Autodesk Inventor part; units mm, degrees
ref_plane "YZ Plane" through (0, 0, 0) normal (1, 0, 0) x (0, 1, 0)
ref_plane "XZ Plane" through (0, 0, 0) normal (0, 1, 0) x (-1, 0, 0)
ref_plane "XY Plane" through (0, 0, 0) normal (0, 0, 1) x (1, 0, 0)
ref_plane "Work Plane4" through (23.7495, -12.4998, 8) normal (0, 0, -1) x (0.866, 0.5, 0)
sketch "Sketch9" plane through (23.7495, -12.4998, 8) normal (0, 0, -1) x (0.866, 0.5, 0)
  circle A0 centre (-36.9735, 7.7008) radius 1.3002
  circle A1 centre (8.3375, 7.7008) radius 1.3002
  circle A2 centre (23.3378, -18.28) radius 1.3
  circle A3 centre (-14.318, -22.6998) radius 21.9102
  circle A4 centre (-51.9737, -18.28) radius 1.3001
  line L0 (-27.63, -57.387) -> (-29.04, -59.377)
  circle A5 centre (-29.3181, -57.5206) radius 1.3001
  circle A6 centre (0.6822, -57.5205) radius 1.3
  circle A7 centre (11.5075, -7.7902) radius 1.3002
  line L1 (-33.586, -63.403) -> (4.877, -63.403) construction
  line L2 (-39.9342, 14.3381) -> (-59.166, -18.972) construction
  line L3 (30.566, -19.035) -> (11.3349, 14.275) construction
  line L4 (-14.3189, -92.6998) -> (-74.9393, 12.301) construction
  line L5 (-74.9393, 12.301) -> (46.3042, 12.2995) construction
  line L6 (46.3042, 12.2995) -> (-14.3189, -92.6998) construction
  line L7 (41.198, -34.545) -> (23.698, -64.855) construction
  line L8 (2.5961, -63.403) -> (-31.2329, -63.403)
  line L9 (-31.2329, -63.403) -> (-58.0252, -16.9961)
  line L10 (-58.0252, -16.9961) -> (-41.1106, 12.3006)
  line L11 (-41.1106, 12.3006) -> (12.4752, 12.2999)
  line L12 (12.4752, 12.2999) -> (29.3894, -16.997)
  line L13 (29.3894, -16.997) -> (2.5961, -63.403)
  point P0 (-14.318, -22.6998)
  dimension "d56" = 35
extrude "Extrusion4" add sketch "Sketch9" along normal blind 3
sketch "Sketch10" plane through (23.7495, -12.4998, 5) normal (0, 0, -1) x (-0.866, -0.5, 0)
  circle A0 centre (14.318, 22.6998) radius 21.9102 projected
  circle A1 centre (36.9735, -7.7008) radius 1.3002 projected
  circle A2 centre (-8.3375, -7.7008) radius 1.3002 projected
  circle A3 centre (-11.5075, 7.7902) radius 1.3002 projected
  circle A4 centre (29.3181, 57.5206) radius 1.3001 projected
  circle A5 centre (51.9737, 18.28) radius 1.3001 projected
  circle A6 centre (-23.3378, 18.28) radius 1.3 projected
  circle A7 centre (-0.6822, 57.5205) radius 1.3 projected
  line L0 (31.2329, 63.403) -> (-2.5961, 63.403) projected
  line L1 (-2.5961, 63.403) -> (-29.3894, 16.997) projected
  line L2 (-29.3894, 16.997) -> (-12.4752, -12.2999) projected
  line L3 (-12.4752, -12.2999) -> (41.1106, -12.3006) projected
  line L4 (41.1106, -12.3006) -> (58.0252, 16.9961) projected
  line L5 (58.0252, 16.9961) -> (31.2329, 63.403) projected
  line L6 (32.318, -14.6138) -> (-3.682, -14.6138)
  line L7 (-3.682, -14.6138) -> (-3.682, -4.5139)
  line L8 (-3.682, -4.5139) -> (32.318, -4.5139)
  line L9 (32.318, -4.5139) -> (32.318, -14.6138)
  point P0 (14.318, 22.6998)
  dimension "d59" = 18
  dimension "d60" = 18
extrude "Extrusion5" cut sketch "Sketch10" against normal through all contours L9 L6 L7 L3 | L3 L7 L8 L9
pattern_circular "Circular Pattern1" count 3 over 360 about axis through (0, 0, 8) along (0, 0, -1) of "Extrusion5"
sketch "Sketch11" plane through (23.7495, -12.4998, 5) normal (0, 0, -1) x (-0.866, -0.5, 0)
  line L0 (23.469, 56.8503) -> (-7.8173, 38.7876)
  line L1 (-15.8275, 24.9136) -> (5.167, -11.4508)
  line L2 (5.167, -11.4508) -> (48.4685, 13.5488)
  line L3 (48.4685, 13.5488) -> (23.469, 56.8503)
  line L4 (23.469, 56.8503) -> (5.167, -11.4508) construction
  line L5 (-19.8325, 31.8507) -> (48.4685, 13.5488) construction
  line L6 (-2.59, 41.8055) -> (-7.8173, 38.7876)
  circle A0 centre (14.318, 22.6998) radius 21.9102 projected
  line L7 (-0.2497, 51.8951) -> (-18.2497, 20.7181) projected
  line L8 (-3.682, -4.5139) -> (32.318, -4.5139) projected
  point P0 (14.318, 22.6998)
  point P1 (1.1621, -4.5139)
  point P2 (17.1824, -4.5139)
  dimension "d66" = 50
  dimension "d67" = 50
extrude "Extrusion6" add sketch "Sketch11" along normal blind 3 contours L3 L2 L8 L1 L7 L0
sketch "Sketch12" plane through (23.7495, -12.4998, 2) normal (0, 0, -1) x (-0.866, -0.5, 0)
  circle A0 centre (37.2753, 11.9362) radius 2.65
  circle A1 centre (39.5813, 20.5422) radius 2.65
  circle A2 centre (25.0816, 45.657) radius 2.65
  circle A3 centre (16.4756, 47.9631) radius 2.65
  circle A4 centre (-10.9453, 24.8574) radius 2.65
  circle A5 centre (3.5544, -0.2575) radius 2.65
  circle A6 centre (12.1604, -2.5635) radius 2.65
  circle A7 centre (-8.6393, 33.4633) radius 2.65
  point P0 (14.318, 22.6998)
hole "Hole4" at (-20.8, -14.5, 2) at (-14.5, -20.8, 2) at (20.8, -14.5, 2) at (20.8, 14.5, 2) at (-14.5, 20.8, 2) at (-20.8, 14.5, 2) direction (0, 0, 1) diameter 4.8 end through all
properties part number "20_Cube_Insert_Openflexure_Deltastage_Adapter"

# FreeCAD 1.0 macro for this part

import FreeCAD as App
import Part
import Sketcher

V = App.Vector
Q = App.Units.Quantity

doc = App.newDocument("Part")
body = doc.addObject("PartDesign::Body", "Body")

# Sketch on XY plane
sketch1 = doc.addObject("Sketcher::SketchObject", "Sketch")
body.addObject(sketch1)
sketch1.AttachmentSupport = (doc.XY_Plane, [""])
sketch1.MapMode = "FlatFace"
sketch1.AttachmentOffset = App.Placement(V(0, 0, 8), App.Rotation())
sketch1.addGeometry([
    Part.LineSegment(V(-35, 26.8, 0), V(-5.7, 43.7, 0)),  # 0
    Part.LineSegment(V(-5.7, 43.7, 0), V(40.7, 16.9, 0)),  # 1
    Part.LineSegment(V(40.7, 16.9, 0), V(40.7, -16.9, 0)),  # 2
    Part.LineSegment(V(40.7, -16.9, 0), V(-5.7, -43.7, 0)),  # 3
    Part.LineSegment(V(-5.7, -43.7, 0), V(-35, -26.8, 0)),  # 4
    Part.LineSegment(V(-35, -26.8, 0), V(-35, 26.8, 0)),  # 5
    Part.Circle(V(-30.4, 22.7, 0), V(0, 0, 1), 1.3),  # 6
    Part.Circle(V(-4.4, 37.7, 0), V(0, 0, 1), 1.3),  # 7
    Part.Circle(V(-30.4, -22.7, 0), V(0, 0, 1), 1.3),  # 8
    Part.Circle(V(0, 0, 0), V(0, 0, 1), 21.9),  # 9
    Part.Circle(V(-4.4, -37.7, 0), V(0, 0, 1), 1.3),  # 10
    Part.Circle(V(34.8, 15, 0), V(0, 0, 1), 1.3),  # 11
    Part.Circle(V(29.8, 0, 0), V(0, 0, 1), 1.3),  # 12
    Part.Circle(V(34.8, -15, 0), V(0, 0, 1), 1.3),  # 13
], False)
sketch1.addConstraint([
    Sketcher.Constraint("Coincident", 0, 2, 1, 1),
    Sketcher.Constraint("Coincident", 1, 2, 2, 1),
    Sketcher.Constraint("Coincident", 2, 2, 3, 1),
    Sketcher.Constraint("Coincident", 3, 2, 4, 1),
    Sketcher.Constraint("Coincident", 4, 2, 5, 1),
    Sketcher.Constraint("Coincident", 5, 2, 0, 1),
    Sketcher.Constraint("Coincident", 9, 3, -1, 1),
    Sketcher.Constraint("Equal", 6, 7),
    Sketcher.Constraint("Equal", 7, 8),
    Sketcher.Constraint("Equal", 8, 10),
    Sketcher.Constraint("Equal", 10, 11),
    Sketcher.Constraint("Equal", 11, 12),
    Sketcher.Constraint("Equal", 12, 13),
    Sketcher.Constraint("Symmetric", 6, 3, 8, 3, -1),
    Sketcher.Constraint("Symmetric", 7, 3, 10, 3, -1),
    Sketcher.Constraint("Symmetric", 11, 3, 13, 3, -1),
    Sketcher.Constraint("Parallel", 0, 3),
    Sketcher.Constraint("Parallel", 1, 4),
    Sketcher.Constraint("Parallel", 2, 5),
    Sketcher.Constraint("Equal", 0, 2),
    Sketcher.Constraint("Equal", 2, 4),
    Sketcher.Constraint("Equal", 3, 5),
    Sketcher.Constraint("Diameter", 7, Q("2.6 mm")),
    Sketcher.Constraint("Angle", 0, Q("30 deg")),
    Sketcher.Constraint("Angle", 1, Q("-29.9993 deg")),
    Sketcher.Constraint("DistanceY", -1, 1, 11, 3, Q("15 mm")),
    Sketcher.Constraint("DistanceY", 6, 3, 7, 3, Q("15 mm")),
    Sketcher.Constraint("Diameter", 9, Q("43.8204 mm")),
    Sketcher.Constraint("DistanceX", 4, 2, -1, 1, Q("34.9998 mm")),
    Sketcher.Constraint("DistanceX", 7, 3, -1, 1, Q("4.42 mm")),
    Sketcher.Constraint("Distance", 0, Q("33.829 mm")),
    Sketcher.Constraint("DistanceX", 6, 3, -1, 1, Q("30.401 mm")),
    Sketcher.Constraint("DistanceX", -1, 1, 1, 2, Q("40.703 mm")),
    Sketcher.Constraint("DistanceY", 10, 3, 6, 3, Q("60.311 mm")),
    Sketcher.Constraint("DistanceY", 12, 3, 7, 3, Q("37.655 mm")),
    Sketcher.Constraint("DistanceY", 9, 3, 0, 2, Q("43.707 mm")),
    Sketcher.Constraint("DistanceX", 0, 2, 12, 3, Q("35.524 mm")),
    Sketcher.Constraint("DistanceX", 13, 3, 2, 2, Q("5.883 mm")),
])
pad1 = doc.addObject("PartDesign::Pad", "Pad")
body.addObject(pad1)
pad1.Profile = sketch1
pad1.Length = 3
pad1.Reversed = True

# Sketch on XY plane
sketch2 = doc.addObject("Sketcher::SketchObject", "Sketch001")
body.addObject(sketch2)
sketch2.AttachmentSupport = (doc.XY_Plane, [""])
sketch2.MapMode = "FlatFace"
sketch2.AttachmentOffset = App.Placement(V(0, 0, 5), App.Rotation())
sketch2.addGeometry([
    Part.LineSegment(V(3, -41, 0), V(-2, -33, 0)),
    Part.LineSegment(V(-2, -33, 0), V(29, -15, 0)),
    Part.LineSegment(V(29, -15, 0), V(34, -23, 0)),
    Part.LineSegment(V(34, -23, 0), V(3, -41, 0)),
], False)
sketch2.addConstraint([
    Sketcher.Constraint("Coincident", 0, 2, 1, 1),
    Sketcher.Constraint("Coincident", 1, 2, 2, 1),
    Sketcher.Constraint("Coincident", 2, 2, 3, 1),
    Sketcher.Constraint("Coincident", 3, 2, 0, 1),
    Sketcher.Constraint("Perpendicular", 0, 1),
    Sketcher.Constraint("Perpendicular", 1, 2),
    Sketcher.Constraint("Perpendicular", 2, 3),
    Sketcher.Constraint("DistanceY", 0, 2, 1, 2, Q("18 mm")),
    Sketcher.Constraint("Angle", 0, Q("120 deg")),
    Sketcher.Constraint("Distance", 0, Q("10.1 mm")),
    Sketcher.Constraint("DistanceY", 0, 2, -1, 1, Q("32.568 mm")),
    Sketcher.Constraint("DistanceX", -1, 1, 2, 2, Q("34.245 mm")),
])
pocket1 = doc.addObject("PartDesign::Pocket", "Pocket")
body.addObject(pocket1)
pocket1.Profile = sketch2
pocket1.Type = "ThroughAll"
pocket1.Reversed = True
doc.recompute()

polarpattern = doc.addObject("PartDesign::PolarPattern", "PolarPattern")
body.addObject(polarpattern)
polarpattern.Originals = [pocket1]
polarpattern.Axis = (doc.Z_Axis, [""])
polarpattern.Angle = 360
polarpattern.Occurrences = 3
body.Tip = polarpattern

# Sketch on XY plane
sketch3 = doc.addObject("Sketcher::SketchObject", "Sketch002")
body.addObject(sketch3)
sketch3.AttachmentSupport = (doc.XY_Plane, [""])
sketch3.MapMode = "FlatFace"
sketch3.AttachmentOffset = App.Placement(V(0, 0, 5), App.Rotation())
sketch3.addGeometry([
    Part.LineSegment(V(-25, -25, 0), V(-25, 25, 0)),  # 0
    Part.LineSegment(V(-25, 25, 0), V(11, 25, 0)),  # 1
    Part.LineSegment(V(11, 25, 0), V(25, 17, 0)),  # 2
    Part.LineSegment(V(25, 17, 0), V(25, -17, 0)),  # 3
    Part.LineSegment(V(25, -17, 0), V(11, -25, 0)),  # 4
    Part.LineSegment(V(11, -25, 0), V(-25, -25, 0)),  # 5
    Part.Circle(V(0, 0, 0), V(0, 0, 1), 22),  # 6
], False)
sketch3.addConstraint([
    Sketcher.Constraint("Coincident", 0, 2, 1, 1),
    Sketcher.Constraint("Coincident", 1, 2, 2, 1),
    Sketcher.Constraint("Coincident", 2, 2, 3, 1),
    Sketcher.Constraint("Coincident", 3, 2, 4, 1),
    Sketcher.Constraint("Coincident", 4, 2, 5, 1),
    Sketcher.Constraint("Coincident", 5, 2, 0, 1),
    Sketcher.Constraint("Coincident", 6, 3, -1, 1),
    Sketcher.Constraint("Perpendicular", 0, 1),
    Sketcher.Constraint("Perpendicular", 1, 3),
    Sketcher.Constraint("Perpendicular", 3, 5),
    Sketcher.Constraint("Equal", 2, 4),
    Sketcher.Constraint("Equal", 1, 5),
    Sketcher.Constraint("Distance", 0, Q("50 mm")),
    Sketcher.Constraint("DistanceX", 0, 2, 2, 2, Q("50 mm")),
    Sketcher.Constraint("DistanceX", 5, 2, 3, 2, Q("50 mm")),
    Sketcher.Constraint("Angle", 2, Q("-30 deg")),
    Sketcher.Constraint("DistanceY", -1, 1, 1, 2, Q("25 mm")),
    Sketcher.Constraint("DistanceX", -1, 1, 3, 2, Q("25 mm")),
    Sketcher.Constraint("Diameter", 6, Q("43.8204 mm")),
    Sketcher.Constraint("DistanceY", 3, 2, -1, 1, Q("16.99 mm")),
])
pad2 = doc.addObject("PartDesign::Pad", "Pad001")
body.addObject(pad2)
pad2.Profile = sketch3
pad2.Length = 3
pad2.Reversed = True

# Sketch on XY plane
sketch4 = doc.addObject("Sketcher::SketchObject", "Sketch003")
body.addObject(sketch4)
sketch4.AttachmentSupport = (doc.XY_Plane, [""])
sketch4.MapMode = "FlatFace"
sketch4.AttachmentOffset = App.Placement(V(0, 0, 2), App.Rotation())
sketch4.addGeometry([
    Part.Circle(V(-20.8, -14.5, 0), V(0, 0, 1), 2.4),  # 0
    Part.Circle(V(-14.5, -20.8, 0), V(0, 0, 1), 2.4),  # 1
    Part.Circle(V(20.8, -14.5, 0), V(0, 0, 1), 2.4),  # 2
    Part.Circle(V(20.8, 14.5, 0), V(0, 0, 1), 2.4),  # 3
    Part.Circle(V(-14.5, 20.8, 0), V(0, 0, 1), 2.4),  # 4
    Part.Circle(V(-20.8, 14.5, 0), V(0, 0, 1), 2.4),  # 5
], False)
sketch4.addConstraint([
    Sketcher.Constraint("Equal", 0, 1),
    Sketcher.Constraint("Equal", 1, 2),
    Sketcher.Constraint("Equal", 2, 3),
    Sketcher.Constraint("Equal", 3, 4),
    Sketcher.Constraint("Equal", 4, 5),
    Sketcher.Constraint("Symmetric", 0, 3, 3, 3, -1, 1),
    Sketcher.Constraint("Symmetric", 2, 3, 5, 3, -1, 1),
    Sketcher.Constraint("Symmetric", 0, 3, 2, 3, -2),
    Sketcher.Constraint("Symmetric", 1, 3, 4, 3, -1),
    Sketcher.Constraint("Diameter", 0, Q("4.8 mm")),
    Sketcher.Constraint("DistanceY", 2, 3, 3, 3, Q("29 mm")),
    Sketcher.Constraint("DistanceX", 0, 3, -1, 1, Q("20.8 mm")),
    Sketcher.Constraint("DistanceX", 1, 3, -1, 1, Q("14.5 mm")),
    Sketcher.Constraint("DistanceY", 1, 3, -1, 1, Q("20.8 mm")),
])
doc.recompute()
hole = doc.addObject("PartDesign::Hole", "Hole")
body.addObject(hole)
hole.Profile = sketch4
hole.ThreadType = "None"
hole.Diameter = 4.8
hole.DepthType = "ThroughAll"
hole.Reversed = True

doc.recompute()
